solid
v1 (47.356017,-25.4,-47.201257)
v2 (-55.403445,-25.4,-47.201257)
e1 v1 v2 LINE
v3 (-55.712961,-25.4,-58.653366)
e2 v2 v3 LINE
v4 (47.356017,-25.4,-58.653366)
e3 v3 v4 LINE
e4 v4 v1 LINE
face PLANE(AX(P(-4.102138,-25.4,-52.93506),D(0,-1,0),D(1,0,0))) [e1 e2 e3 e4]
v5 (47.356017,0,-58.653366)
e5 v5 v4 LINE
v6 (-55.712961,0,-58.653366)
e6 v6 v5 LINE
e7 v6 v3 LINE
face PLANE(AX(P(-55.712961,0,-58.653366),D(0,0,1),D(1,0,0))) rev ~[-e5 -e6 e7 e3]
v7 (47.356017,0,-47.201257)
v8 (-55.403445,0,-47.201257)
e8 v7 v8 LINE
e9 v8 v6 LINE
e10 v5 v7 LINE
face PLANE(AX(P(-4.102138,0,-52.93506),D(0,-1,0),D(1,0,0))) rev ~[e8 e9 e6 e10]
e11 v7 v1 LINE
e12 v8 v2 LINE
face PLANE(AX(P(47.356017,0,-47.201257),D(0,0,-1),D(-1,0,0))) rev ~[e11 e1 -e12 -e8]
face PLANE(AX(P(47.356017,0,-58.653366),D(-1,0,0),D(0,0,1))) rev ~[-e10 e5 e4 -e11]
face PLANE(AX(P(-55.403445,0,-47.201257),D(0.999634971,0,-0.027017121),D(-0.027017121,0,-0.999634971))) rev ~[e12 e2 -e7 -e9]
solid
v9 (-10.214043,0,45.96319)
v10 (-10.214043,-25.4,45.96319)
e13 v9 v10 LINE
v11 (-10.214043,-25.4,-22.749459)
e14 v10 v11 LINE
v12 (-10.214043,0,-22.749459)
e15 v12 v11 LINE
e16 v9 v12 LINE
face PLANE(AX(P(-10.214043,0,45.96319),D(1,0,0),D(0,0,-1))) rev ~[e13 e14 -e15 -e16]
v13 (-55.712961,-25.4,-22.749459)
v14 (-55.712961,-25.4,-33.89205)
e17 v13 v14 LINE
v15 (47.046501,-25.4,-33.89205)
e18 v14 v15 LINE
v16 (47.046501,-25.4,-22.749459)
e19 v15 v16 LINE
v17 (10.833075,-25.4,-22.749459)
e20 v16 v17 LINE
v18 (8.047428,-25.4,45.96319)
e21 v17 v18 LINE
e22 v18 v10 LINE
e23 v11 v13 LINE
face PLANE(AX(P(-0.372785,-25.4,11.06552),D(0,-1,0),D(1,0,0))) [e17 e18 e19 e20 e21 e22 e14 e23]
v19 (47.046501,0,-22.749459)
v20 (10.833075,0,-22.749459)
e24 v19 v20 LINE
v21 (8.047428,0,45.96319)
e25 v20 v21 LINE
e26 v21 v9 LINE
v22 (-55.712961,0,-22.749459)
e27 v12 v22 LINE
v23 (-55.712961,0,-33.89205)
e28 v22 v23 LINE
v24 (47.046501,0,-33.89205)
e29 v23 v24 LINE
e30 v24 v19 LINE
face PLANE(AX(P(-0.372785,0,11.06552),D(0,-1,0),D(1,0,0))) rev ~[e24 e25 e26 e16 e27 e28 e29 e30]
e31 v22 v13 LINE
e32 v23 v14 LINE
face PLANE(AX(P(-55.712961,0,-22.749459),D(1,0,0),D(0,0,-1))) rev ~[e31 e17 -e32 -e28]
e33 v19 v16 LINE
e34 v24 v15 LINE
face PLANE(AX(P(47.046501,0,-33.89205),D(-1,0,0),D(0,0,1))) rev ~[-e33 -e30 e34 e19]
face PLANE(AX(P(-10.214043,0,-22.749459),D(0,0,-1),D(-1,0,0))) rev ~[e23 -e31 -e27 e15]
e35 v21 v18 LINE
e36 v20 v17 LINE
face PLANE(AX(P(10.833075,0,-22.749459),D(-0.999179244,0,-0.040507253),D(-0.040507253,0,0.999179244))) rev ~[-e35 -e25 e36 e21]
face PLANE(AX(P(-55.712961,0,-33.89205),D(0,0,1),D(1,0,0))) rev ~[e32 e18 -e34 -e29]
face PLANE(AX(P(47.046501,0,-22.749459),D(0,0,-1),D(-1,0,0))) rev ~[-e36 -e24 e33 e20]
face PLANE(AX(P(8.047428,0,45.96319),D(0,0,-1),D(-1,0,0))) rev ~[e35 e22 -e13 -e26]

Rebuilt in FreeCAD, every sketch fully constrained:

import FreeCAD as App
import Part
import Sketcher
from FreeCAD import Vector
Q = App.Units.Quantity


def add_polygon(sketch, points):
    """Adds a closed chain of lines whose ends are joined by coincident constraints."""
    first, n = sketch.GeometryCount, len(points)
    for a, b in zip(points, points[1:] + points[:1]):
        sketch.addGeometry(Part.LineSegment(App.Vector(*a, 0), App.Vector(*b, 0)), False)
    for i in range(n):
        sketch.addConstraint(Sketcher.Constraint("Coincident", first + i, 2, first + (i + 1) % n, 1))

doc = App.newDocument("Part")
body = doc.addObject("PartDesign::Body", "Body")
body.AllowCompound = True

sketch1 = body.newObject("Sketcher::SketchObject", "Sketch")
sketch1.AttachmentSupport = (doc.getObject("XZ_Plane"), [""])
sketch1.MapMode = "FlatFace"
add_polygon(sketch1, [(-10.214043, 45.96319), (-10.214043, -22.749459), (-55.712961, -22.749459), (-55.712961, -33.89205), (47.046501, -33.89205), (47.046501, -22.749459), (10.833075, -22.749459), (8.047428, 45.96319)])
add_polygon(sketch1, [(47.356017, -47.201257), (-55.403445, -47.201257), (-55.712961, -58.653366), (47.356017, -58.653366)])
sketch1.addConstraint([
    Sketcher.Constraint("Vertical", 0),
    Sketcher.Constraint("Horizontal", 1),
    Sketcher.Constraint("Vertical", 2),
    Sketcher.Constraint("Horizontal", 3),
    Sketcher.Constraint("Vertical", 4),
    Sketcher.Constraint("Horizontal", 5),
    Sketcher.Constraint("Horizontal", 7),
    Sketcher.Constraint("Horizontal", 8),
    Sketcher.Constraint("Horizontal", 10),
    Sketcher.Constraint("Vertical", 11),
    Sketcher.Constraint("Horizontal", 1, 2, 4, 2),
    Sketcher.Constraint("Vertical", 2, 2, 9, 2),
    Sketcher.Constraint("Equal", 3, 8),
    Sketcher.Constraint("DistanceX", 1, 2, 1, 1, Q("45.498918 mm")),
    Sketcher.Constraint("DistanceX", 3, 1, 3, 2, Q("102.759462 mm")),
    Sketcher.Constraint("DistanceX", 7, 2, 7, 1, Q("18.261471 mm")),
    Sketcher.Constraint("DistanceX", 10, 1, 10, 2, Q("103.068978 mm")),
    Sketcher.Constraint("DistanceY", 0, 2, 0, 1, Q("68.712649 mm")),
    Sketcher.Constraint("DistanceY", 2, 2, 2, 1, Q("11.142591 mm")),
    Sketcher.Constraint("DistanceY", 11, 1, 11, 2, Q("11.452109 mm")),
    Sketcher.Constraint("DistanceX", -1, 1, 3, 2, Q("47.046501 mm")),
    Sketcher.Constraint("Distance", 6, Q("68.769092 mm")),
    Sketcher.Constraint("DistanceY", 0, 2, -1, 1, Q("22.749459 mm")),
    Sketcher.Constraint("DistanceY", 8, 2, -1, 1, Q("47.201257 mm")),
])
pad1 = body.newObject("PartDesign::Pad", "Pad")
pad1.Profile = sketch1
pad1.Length = Q("1 in")

doc.recompute()
